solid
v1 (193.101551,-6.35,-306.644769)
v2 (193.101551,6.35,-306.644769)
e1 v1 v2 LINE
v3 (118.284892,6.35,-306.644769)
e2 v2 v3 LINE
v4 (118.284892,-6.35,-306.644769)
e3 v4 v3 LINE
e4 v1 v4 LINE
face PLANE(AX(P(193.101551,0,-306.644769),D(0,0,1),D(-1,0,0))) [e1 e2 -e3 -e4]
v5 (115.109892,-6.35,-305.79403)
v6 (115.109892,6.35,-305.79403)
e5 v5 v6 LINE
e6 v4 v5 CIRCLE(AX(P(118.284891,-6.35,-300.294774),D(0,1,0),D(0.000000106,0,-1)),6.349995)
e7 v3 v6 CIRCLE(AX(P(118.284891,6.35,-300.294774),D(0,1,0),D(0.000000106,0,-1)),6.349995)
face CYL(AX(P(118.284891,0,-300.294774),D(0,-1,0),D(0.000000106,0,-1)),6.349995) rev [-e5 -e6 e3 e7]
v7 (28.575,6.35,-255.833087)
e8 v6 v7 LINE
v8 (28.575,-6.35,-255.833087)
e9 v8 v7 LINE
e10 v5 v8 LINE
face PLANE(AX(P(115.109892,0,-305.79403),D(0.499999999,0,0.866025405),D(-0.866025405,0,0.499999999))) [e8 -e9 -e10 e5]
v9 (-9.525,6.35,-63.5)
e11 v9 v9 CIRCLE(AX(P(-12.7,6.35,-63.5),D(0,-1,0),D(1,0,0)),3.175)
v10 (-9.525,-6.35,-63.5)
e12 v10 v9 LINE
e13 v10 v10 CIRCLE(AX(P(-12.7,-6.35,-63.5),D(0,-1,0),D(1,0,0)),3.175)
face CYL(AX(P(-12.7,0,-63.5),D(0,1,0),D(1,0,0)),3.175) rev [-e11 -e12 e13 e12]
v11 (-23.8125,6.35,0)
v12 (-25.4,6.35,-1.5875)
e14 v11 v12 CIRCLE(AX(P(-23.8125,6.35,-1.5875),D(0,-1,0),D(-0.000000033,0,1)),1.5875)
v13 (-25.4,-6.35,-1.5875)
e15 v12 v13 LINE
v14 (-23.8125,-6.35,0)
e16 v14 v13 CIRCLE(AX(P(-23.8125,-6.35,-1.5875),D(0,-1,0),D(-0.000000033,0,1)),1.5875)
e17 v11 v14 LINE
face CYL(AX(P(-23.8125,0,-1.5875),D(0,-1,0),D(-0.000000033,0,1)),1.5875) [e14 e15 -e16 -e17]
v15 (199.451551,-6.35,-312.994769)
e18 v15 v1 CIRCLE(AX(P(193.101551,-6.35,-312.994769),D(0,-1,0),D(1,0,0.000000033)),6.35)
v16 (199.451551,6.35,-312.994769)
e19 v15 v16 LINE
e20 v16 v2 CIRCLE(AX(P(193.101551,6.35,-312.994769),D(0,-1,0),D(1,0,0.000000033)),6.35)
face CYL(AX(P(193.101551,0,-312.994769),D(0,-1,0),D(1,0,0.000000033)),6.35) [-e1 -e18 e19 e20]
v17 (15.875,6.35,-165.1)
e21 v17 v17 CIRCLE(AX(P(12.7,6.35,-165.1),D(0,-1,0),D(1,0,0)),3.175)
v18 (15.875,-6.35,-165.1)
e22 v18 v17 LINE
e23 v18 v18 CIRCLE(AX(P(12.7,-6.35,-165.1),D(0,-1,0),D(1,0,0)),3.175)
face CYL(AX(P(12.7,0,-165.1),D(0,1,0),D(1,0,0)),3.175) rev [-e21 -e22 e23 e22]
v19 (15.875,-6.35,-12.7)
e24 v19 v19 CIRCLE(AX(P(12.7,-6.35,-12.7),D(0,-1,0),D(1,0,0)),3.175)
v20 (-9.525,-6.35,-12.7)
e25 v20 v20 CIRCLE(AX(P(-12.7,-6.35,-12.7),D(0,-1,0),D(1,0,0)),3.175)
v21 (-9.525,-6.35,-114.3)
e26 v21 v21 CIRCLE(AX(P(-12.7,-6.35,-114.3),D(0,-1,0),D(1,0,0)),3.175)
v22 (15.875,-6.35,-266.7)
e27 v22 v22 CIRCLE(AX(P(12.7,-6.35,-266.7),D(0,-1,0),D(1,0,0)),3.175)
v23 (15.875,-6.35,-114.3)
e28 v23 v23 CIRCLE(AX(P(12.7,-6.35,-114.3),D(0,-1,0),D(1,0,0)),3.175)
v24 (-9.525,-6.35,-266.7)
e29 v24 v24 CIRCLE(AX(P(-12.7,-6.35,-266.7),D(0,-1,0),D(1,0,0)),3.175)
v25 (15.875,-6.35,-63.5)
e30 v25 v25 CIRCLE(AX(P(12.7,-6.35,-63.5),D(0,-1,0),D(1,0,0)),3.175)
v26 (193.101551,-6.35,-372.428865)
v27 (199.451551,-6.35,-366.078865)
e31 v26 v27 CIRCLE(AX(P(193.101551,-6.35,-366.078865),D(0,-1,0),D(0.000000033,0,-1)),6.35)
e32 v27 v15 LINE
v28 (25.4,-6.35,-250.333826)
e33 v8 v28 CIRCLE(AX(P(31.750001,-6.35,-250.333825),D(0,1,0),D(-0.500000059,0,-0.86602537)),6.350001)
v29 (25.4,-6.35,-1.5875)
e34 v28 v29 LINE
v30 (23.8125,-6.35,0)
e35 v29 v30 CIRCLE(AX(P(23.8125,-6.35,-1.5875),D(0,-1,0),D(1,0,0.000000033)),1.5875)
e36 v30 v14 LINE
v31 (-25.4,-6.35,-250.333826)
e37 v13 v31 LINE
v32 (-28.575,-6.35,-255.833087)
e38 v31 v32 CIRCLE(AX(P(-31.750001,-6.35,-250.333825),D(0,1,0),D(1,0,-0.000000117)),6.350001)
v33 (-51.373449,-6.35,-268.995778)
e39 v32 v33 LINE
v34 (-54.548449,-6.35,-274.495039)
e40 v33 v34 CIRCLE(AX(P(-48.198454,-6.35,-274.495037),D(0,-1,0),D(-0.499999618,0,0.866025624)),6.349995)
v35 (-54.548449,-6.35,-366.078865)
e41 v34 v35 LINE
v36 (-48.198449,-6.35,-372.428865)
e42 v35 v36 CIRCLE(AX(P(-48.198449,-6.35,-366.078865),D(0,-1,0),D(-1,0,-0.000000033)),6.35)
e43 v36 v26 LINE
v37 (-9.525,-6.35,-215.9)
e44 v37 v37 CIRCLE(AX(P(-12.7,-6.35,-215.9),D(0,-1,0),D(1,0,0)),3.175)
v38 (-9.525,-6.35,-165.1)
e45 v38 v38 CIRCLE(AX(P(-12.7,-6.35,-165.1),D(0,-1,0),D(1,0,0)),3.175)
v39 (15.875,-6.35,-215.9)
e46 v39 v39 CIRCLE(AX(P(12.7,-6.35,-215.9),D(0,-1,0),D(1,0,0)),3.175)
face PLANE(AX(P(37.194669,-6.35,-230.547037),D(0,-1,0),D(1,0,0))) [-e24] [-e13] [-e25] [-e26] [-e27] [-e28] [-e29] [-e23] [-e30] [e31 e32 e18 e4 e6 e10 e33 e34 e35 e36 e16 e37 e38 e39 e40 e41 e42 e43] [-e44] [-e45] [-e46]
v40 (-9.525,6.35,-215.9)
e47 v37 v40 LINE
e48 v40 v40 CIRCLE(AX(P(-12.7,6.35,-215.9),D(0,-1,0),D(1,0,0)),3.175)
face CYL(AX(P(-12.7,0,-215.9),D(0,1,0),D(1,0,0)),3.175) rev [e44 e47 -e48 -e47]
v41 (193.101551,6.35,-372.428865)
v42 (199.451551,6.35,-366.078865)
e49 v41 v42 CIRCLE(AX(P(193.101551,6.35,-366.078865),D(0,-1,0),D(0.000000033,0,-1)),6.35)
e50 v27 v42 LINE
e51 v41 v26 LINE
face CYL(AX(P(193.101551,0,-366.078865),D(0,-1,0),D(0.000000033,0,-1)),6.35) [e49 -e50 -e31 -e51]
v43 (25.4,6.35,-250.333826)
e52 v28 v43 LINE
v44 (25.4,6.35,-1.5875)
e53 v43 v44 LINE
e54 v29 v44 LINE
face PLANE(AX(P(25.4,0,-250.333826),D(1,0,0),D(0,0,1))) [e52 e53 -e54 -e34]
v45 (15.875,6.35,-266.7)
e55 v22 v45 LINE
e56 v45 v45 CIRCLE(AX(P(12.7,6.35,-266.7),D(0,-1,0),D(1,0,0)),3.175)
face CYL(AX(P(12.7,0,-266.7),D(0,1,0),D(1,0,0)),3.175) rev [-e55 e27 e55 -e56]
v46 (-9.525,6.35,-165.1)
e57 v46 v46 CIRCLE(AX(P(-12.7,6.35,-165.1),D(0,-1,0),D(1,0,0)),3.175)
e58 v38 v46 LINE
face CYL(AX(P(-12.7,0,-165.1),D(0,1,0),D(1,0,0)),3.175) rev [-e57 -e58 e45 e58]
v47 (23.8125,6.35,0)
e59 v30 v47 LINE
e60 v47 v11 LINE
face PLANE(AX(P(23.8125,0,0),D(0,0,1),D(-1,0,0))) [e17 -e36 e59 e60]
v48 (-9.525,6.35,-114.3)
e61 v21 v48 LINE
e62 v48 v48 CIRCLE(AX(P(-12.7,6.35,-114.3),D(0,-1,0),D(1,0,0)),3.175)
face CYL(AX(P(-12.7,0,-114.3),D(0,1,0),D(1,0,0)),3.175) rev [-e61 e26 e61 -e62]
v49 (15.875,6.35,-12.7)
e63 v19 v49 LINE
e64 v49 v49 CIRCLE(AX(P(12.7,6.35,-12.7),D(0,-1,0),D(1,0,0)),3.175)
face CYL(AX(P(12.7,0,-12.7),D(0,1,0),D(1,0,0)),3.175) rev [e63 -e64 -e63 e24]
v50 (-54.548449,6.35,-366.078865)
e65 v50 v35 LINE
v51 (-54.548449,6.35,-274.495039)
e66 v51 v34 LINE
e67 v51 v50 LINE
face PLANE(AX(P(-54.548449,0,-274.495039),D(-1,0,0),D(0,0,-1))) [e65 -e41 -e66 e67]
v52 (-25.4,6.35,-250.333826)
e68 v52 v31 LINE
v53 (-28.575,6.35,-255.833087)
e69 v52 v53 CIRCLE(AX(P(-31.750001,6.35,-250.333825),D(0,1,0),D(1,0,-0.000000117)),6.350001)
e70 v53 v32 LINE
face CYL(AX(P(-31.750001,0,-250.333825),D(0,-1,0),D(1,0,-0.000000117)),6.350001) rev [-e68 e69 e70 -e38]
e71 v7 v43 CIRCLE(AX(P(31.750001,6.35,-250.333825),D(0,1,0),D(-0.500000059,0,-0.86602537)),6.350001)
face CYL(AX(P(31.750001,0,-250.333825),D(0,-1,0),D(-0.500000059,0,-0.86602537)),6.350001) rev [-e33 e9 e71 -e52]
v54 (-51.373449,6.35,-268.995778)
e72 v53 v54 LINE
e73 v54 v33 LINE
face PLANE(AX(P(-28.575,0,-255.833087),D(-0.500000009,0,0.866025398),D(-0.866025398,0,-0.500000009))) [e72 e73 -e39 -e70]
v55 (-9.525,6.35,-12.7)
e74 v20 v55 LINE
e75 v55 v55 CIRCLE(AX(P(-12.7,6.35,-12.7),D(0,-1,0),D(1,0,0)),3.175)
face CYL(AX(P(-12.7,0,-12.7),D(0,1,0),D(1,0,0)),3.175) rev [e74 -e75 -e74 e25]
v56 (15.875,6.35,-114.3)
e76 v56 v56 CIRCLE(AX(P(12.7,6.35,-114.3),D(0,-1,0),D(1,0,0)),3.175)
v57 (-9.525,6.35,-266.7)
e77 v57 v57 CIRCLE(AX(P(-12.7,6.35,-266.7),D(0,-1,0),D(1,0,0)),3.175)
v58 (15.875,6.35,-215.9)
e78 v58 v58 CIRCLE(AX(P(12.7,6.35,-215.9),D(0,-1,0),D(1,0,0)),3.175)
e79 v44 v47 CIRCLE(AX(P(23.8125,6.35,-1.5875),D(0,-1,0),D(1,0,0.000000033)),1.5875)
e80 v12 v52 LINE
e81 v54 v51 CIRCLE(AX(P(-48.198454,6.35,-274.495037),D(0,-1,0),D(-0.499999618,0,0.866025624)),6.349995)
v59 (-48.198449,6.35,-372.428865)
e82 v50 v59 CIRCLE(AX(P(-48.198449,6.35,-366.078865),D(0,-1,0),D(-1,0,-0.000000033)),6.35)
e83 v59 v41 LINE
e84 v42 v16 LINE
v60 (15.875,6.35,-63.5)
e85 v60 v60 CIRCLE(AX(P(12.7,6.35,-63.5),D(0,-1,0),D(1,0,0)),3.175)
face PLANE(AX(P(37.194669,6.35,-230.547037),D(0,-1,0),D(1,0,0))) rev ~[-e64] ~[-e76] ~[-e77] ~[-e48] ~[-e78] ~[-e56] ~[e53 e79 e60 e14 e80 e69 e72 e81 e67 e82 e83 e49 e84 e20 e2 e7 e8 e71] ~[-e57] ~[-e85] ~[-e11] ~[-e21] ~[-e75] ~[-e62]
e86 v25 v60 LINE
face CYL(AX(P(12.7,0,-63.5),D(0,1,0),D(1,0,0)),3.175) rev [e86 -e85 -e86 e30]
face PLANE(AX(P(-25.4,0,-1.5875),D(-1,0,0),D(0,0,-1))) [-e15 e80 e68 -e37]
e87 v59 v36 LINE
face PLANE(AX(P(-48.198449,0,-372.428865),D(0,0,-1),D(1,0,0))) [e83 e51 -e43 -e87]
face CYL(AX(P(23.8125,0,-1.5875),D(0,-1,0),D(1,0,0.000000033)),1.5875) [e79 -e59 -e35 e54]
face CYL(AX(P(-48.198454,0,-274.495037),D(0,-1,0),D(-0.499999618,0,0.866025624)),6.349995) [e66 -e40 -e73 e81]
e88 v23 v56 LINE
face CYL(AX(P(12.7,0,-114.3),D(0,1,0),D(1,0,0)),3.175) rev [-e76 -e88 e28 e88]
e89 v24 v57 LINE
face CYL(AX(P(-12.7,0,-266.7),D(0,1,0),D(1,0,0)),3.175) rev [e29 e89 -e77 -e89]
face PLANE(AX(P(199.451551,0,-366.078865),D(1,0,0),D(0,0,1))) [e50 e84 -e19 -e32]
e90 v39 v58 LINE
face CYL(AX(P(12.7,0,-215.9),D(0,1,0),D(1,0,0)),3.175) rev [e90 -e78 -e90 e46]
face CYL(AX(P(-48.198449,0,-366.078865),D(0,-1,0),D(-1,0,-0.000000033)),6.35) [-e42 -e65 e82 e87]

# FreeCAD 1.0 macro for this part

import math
import FreeCAD as App
import Part
import Sketcher

V = App.Vector
Q = App.Units.Quantity

doc = App.newDocument("Part")
body = doc.addObject("PartDesign::Body", "Body")

# Sketch on XZ plane
sketch1 = body.newObject("Sketcher::SketchObject", "Sketch")
sketch1.AttachmentSupport = (doc.getObject("XZ_Plane"), [""])
sketch1.MapMode = "FlatFace"
sketch1.addGeometry(Part.LineSegment(V(23.8125, 0, 0), V(-23.8125, 0, 0)), False)
sketch1.addGeometry(Part.ArcOfCircle(Part.Circle(V(-23.8125, -1.5875, 0), V(0, 0, 1), 1.5875), math.radians(90.000002), math.radians(179.999998)), False)
sketch1.addGeometry(Part.LineSegment(V(-25.4, -1.5875, 0), V(-25.4, -250.333826, 0)), False)
sketch1.addGeometry(Part.ArcOfCircle(Part.Circle(V(-31.750001, -250.333825, 0), V(0, 0, 1), 6.350001), math.radians(-59.999996), math.radians(-0.000007)), False)
sketch1.addGeometry(Part.LineSegment(V(-28.575, -255.833087, 0), V(-51.373449, -268.995778, 0)), False)
sketch1.addGeometry(Part.ArcOfCircle(Part.Circle(V(-48.198454, -274.495037, 0), V(0, 0, 1), 6.349995), math.radians(119.999975), math.radians(180.000022)), False)
sketch1.addGeometry(Part.LineSegment(V(-54.548449, -274.495039, 0), V(-54.548449, -366.078865, 0)), False)
sketch1.addGeometry(Part.ArcOfCircle(Part.Circle(V(-48.198449, -366.078865, 0), V(0, 0, 1), 6.35), math.radians(-179.999998), math.radians(-90.000002)), False)
sketch1.addGeometry(Part.LineSegment(V(-48.198449, -372.428865, 0), V(193.101551, -372.428865, 0)), False)
sketch1.addGeometry(Part.ArcOfCircle(Part.Circle(V(193.101551, -366.078865, 0), V(0, 0, 1), 6.35), math.radians(-89.999998), math.radians(-0.000002)), False)
sketch1.addGeometry(Part.LineSegment(V(199.451551, -366.078865, 0), V(199.451551, -312.994769, 0)), False)
sketch1.addGeometry(Part.ArcOfCircle(Part.Circle(V(193.101551, -312.994769, 0), V(0, 0, 1), 6.35), math.radians(0.000002), math.radians(89.999998)), False)
sketch1.addGeometry(Part.LineSegment(V(193.101551, -306.644769, 0), V(118.284892, -306.644769, 0)), False)
sketch1.addGeometry(Part.ArcOfCircle(Part.Circle(V(118.284891, -300.294774, 0), V(0, 0, 1), 6.349995), math.radians(-120.000017), math.radians(-89.999994)), False)
sketch1.addGeometry(Part.LineSegment(V(115.109892, -305.79403, 0), V(28.575, -255.833087, 0)), False)
sketch1.addGeometry(Part.ArcOfCircle(Part.Circle(V(31.750001, -250.333825, 0), V(0, 0, 1), 6.350001), math.radians(-179.999993), math.radians(-120.000004)), False)
sketch1.addGeometry(Part.LineSegment(V(25.4, -250.333826, 0), V(25.4, -1.5875, 0)), False)
sketch1.addGeometry(Part.ArcOfCircle(Part.Circle(V(23.8125, -1.5875, 0), V(0, 0, 1), 1.5875), math.radians(0.000002), math.radians(89.999998)), False)
sketch1.addGeometry(Part.Circle(V(-12.7, -266.7, 0), V(0, 0, 1), 3.175), False)
sketch1.addGeometry(Part.Circle(V(-12.7, -215.9, 0), V(0, 0, 1), 3.175), False)
sketch1.addGeometry(Part.Circle(V(-12.7, -165.1, 0), V(0, 0, 1), 3.175), False)
sketch1.addGeometry(Part.Circle(V(12.7, -266.7, 0), V(0, 0, 1), 3.175), False)
sketch1.addGeometry(Part.Circle(V(12.7, -215.9, 0), V(0, 0, 1), 3.175), False)
sketch1.addGeometry(Part.Circle(V(12.7, -165.1, 0), V(0, 0, 1), 3.175), False)
sketch1.addGeometry(Part.Circle(V(-12.7, -114.3, 0), V(0, 0, 1), 3.175), False)
sketch1.addGeometry(Part.Circle(V(-12.7, -63.5, 0), V(0, 0, 1), 3.175), False)
sketch1.addGeometry(Part.Circle(V(-12.7, -12.7, 0), V(0, 0, 1), 3.175), False)
sketch1.addGeometry(Part.Circle(V(12.7, -114.3, 0), V(0, 0, 1), 3.175), False)
sketch1.addGeometry(Part.Circle(V(12.7, -63.5, 0), V(0, 0, 1), 3.175), False)
sketch1.addGeometry(Part.Circle(V(12.7, -12.7, 0), V(0, 0, 1), 3.175), False)
sketch1.addConstraint(Sketcher.Constraint("Tangent", 0, 2, 1, 1))
sketch1.addConstraint(Sketcher.Constraint("Tangent", 1, 2, 2, 1))
sketch1.addConstraint(Sketcher.Constraint("Tangent", 2, 2, 3, 2))
sketch1.addConstraint(Sketcher.Constraint("Tangent", 3, 1, 4, 1))
sketch1.addConstraint(Sketcher.Constraint("Tangent", 4, 2, 5, 1))
sketch1.addConstraint(Sketcher.Constraint("Tangent", 5, 2, 6, 1))
sketch1.addConstraint(Sketcher.Constraint("Tangent", 6, 2, 7, 1))
sketch1.addConstraint(Sketcher.Constraint("Tangent", 7, 2, 8, 1))
sketch1.addConstraint(Sketcher.Constraint("Tangent", 8, 2, 9, 1))
sketch1.addConstraint(Sketcher.Constraint("Tangent", 9, 2, 10, 1))
sketch1.addConstraint(Sketcher.Constraint("Tangent", 10, 2, 11, 1))
sketch1.addConstraint(Sketcher.Constraint("Tangent", 11, 2, 12, 1))
sketch1.addConstraint(Sketcher.Constraint("Tangent", 12, 2, 13, 2))
sketch1.addConstraint(Sketcher.Constraint("Tangent", 13, 1, 14, 1))
sketch1.addConstraint(Sketcher.Constraint("Tangent", 14, 2, 15, 2))
sketch1.addConstraint(Sketcher.Constraint("Tangent", 15, 1, 16, 1))
sketch1.addConstraint(Sketcher.Constraint("Tangent", 16, 2, 17, 1))
sketch1.addConstraint(Sketcher.Constraint("Tangent", 17, 2, 0, 1))
sketch1.addConstraint(Sketcher.Constraint("Horizontal", 0))
sketch1.addConstraint(Sketcher.Constraint("Vertical", 2))
sketch1.addConstraint(Sketcher.Constraint("Vertical", 6))
sketch1.addConstraint(Sketcher.Constraint("Horizontal", 8))
sketch1.addConstraint(Sketcher.Constraint("Vertical", 10))
sketch1.addConstraint(Sketcher.Constraint("Horizontal", 12))
sketch1.addConstraint(Sketcher.Constraint("Vertical", 16))
sketch1.addConstraint(Sketcher.Constraint("Equal", 3, 7))
sketch1.addConstraint(Sketcher.Constraint("Equal", 7, 9))
sketch1.addConstraint(Sketcher.Constraint("Equal", 9, 11))
sketch1.addConstraint(Sketcher.Constraint("Equal", 5, 13))
sketch1.addConstraint(Sketcher.Constraint("Equal", 11, 15))
sketch1.addConstraint(Sketcher.Constraint("Equal", 1, 17))
sketch1.addConstraint(Sketcher.Constraint("Equal", 18, 19))
sketch1.addConstraint(Sketcher.Constraint("Equal", 19, 20))
sketch1.addConstraint(Sketcher.Constraint("Equal", 20, 21))
sketch1.addConstraint(Sketcher.Constraint("Equal", 21, 22))
sketch1.addConstraint(Sketcher.Constraint("Equal", 22, 23))
sketch1.addConstraint(Sketcher.Constraint("Equal", 23, 24))
sketch1.addConstraint(Sketcher.Constraint("Equal", 24, 25))
sketch1.addConstraint(Sketcher.Constraint("Equal", 25, 26))
sketch1.addConstraint(Sketcher.Constraint("Equal", 26, 27))
sketch1.addConstraint(Sketcher.Constraint("Equal", 27, 28))
sketch1.addConstraint(Sketcher.Constraint("Equal", 28, 29))
sketch1.addConstraint(Sketcher.Constraint("Symmetric", 0, 2, 17, 2, -1, 1))
sketch1.addConstraint(Sketcher.Constraint("Symmetric", 18, 3, 21, 3, -2))
sketch1.addConstraint(Sketcher.Constraint("Symmetric", 19, 3, 22, 3, -2))
sketch1.addConstraint(Sketcher.Constraint("Symmetric", 20, 3, 23, 3, -2))
sketch1.addConstraint(Sketcher.Constraint("Symmetric", 24, 3, 27, 3, -2))
sketch1.addConstraint(Sketcher.Constraint("Symmetric", 25, 3, 28, 3, -2))
sketch1.addConstraint(Sketcher.Constraint("Symmetric", 26, 3, 29, 3, -2))
sketch1.addConstraint(Sketcher.Constraint("Symmetric", 3, 1, 14, 2, -2))
sketch1.addConstraint(Sketcher.Constraint("Vertical", 18, 3, 19, 3))
sketch1.addConstraint(Sketcher.Constraint("Vertical", 19, 3, 20, 3))
sketch1.addConstraint(Sketcher.Constraint("Vertical", 20, 3, 24, 3))
sketch1.addConstraint(Sketcher.Constraint("Vertical", 24, 3, 25, 3))
sketch1.addConstraint(Sketcher.Constraint("Vertical", 25, 3, 26, 3))
sketch1.addConstraint(Sketcher.Constraint("Diameter", 18, Q("0.25 in")))
sketch1.addConstraint(Sketcher.Constraint("Radius", 3, Q("0.25 in")))
sketch1.addConstraint(Sketcher.Constraint("Radius", 5, Q("0.2499998 in")))
sketch1.addConstraint(Sketcher.Constraint("DistanceX", 8, 1, 8, 2, Q("9.5 in")))
sketch1.addConstraint(Sketcher.Constraint("DistanceX", 1, 2, -1, 1, Q("1 in")))
sketch1.addConstraint(Sketcher.Constraint("Angle", 4, Q("-149.999999 deg")))
sketch1.addConstraint(Sketcher.Constraint("Radius", 1, Q("0.0625 in")))
sketch1.addConstraint(Sketcher.Constraint("DistanceY", 18, 3, 19, 3, Q("2 in")))
sketch1.addConstraint(Sketcher.Constraint("DistanceY", 19, 3, 20, 3, Q("2 in")))
sketch1.addConstraint(Sketcher.Constraint("DistanceX", 18, 3, 21, 3, Q("1 in")))
sketch1.addConstraint(Sketcher.Constraint("DistanceY", 20, 3, 24, 3, Q("2 in")))
sketch1.addConstraint(Sketcher.Constraint("DistanceY", 24, 3, 25, 3, Q("2 in")))
sketch1.addConstraint(Sketcher.Constraint("DistanceY", 25, 3, 26, 3, Q("2 in")))
sketch1.addConstraint(Sketcher.Constraint("DistanceY", 18, 3, -1, 1, Q("10.5 in")))
sketch1.addConstraint(Sketcher.Constraint("DistanceX", 12, 2, 12, 1, 74.816659))
sketch1.addConstraint(Sketcher.Constraint("Distance", 4, 26.325382))
sketch1.addConstraint(Sketcher.Constraint("DistanceY", 2, 2, 2, 1, 248.746326))
sketch1.addConstraint(Sketcher.Constraint("DistanceY", 6, 2, 6, 1, 91.583826))
pad1 = body.newObject("PartDesign::Pad", "Pad")
pad1.Profile = sketch1
pad1.Length = Q("0.5 in")
pad1.Midplane = True

doc.recompute()
